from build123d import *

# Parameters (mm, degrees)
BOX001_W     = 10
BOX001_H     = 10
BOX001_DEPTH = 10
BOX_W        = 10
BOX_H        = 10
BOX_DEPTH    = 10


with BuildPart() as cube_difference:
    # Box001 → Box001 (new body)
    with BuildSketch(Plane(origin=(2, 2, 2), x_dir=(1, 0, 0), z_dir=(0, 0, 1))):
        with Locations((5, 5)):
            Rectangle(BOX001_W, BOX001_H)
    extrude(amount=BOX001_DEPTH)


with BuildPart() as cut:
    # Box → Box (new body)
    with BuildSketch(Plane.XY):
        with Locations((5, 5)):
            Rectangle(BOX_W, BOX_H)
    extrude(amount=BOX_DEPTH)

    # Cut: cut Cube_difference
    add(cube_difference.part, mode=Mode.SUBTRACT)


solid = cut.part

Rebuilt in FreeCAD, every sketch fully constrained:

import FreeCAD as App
import Part
import Sketcher


def add_polygon(sketch, points):
    """Adds a closed chain of lines whose ends are joined by coincident constraints."""
    first, n = sketch.GeometryCount, len(points)
    for a, b in zip(points, points[1:] + points[:1]):
        sketch.addGeometry(Part.LineSegment(App.Vector(*a, 0), App.Vector(*b, 0)), False)
    for i in range(n):
        sketch.addConstraint(Sketcher.Constraint("Coincident", first + i, 2, first + (i + 1) % n, 1))

doc = App.newDocument("Part")
body = doc.addObject("PartDesign::Body", "Body")

# Sketch on XY plane
sketch1 = body.newObject("Sketcher::SketchObject", "Sketch")
sketch1.AttachmentSupport = (doc.getObject("XY_Plane"), [""])
sketch1.MapMode = "FlatFace"
sketch1.AttachmentOffset = App.Placement(App.Vector(0, 0, 2), App.Rotation())
add_polygon(sketch1, [(2, 12), (2, 2), (12, 2), (12, 12)])  # lines 0-3
sketch1.addConstraint(Sketcher.Constraint("Vertical", 0))
sketch1.addConstraint(Sketcher.Constraint("Horizontal", 1))
sketch1.addConstraint(Sketcher.Constraint("Vertical", 2))
sketch1.addConstraint(Sketcher.Constraint("Horizontal", 3))
sketch1.addConstraint(Sketcher.Constraint("Equal", 3, 0))
sketch1.addConstraint(Sketcher.Constraint("DistanceX", 1, 1, 1, 2, 10.0))
sketch1.addConstraint(Sketcher.Constraint("DistanceX", -1, 1, 0, 2, 2.0))
sketch1.addConstraint(Sketcher.Constraint("DistanceY", -1, 1, 0, 2, 2.0))
pad1 = body.newObject("PartDesign::Pad", "Pad")
pad1.Profile = sketch1
pad1.Length = 10
body2 = doc.addObject("PartDesign::Body", "Body001")

# Sketch on XY plane
sketch2 = body2.newObject("Sketcher::SketchObject", "Sketch001")
sketch2.AttachmentSupport = (doc.getObject("XY_Plane001"), [""])
sketch2.MapMode = "FlatFace"
add_polygon(sketch2, [(0, 10), (0, 0), (10, 0), (10, 10)])  # lines 0-3
sketch2.addConstraint(Sketcher.Constraint("Vertical", 0))
sketch2.addConstraint(Sketcher.Constraint("Horizontal", 1))
sketch2.addConstraint(Sketcher.Constraint("Vertical", 2))
sketch2.addConstraint(Sketcher.Constraint("Horizontal", 3))
sketch2.addConstraint(Sketcher.Constraint("Coincident", 0, 2, -1, 1))
sketch2.addConstraint(Sketcher.Constraint("Equal", 3, 0))
sketch2.addConstraint(Sketcher.Constraint("DistanceX", 1, 1, 1, 2, 10.0))
pad2 = body2.newObject("PartDesign::Pad", "Pad001")
pad2.Profile = sketch2
pad2.Length = 10
doc.recompute()

boolean = body2.newObject("PartDesign::Boolean", "Boolean")
boolean.Type = "Cut"
boolean.addObjects([body])

doc.recompute()
